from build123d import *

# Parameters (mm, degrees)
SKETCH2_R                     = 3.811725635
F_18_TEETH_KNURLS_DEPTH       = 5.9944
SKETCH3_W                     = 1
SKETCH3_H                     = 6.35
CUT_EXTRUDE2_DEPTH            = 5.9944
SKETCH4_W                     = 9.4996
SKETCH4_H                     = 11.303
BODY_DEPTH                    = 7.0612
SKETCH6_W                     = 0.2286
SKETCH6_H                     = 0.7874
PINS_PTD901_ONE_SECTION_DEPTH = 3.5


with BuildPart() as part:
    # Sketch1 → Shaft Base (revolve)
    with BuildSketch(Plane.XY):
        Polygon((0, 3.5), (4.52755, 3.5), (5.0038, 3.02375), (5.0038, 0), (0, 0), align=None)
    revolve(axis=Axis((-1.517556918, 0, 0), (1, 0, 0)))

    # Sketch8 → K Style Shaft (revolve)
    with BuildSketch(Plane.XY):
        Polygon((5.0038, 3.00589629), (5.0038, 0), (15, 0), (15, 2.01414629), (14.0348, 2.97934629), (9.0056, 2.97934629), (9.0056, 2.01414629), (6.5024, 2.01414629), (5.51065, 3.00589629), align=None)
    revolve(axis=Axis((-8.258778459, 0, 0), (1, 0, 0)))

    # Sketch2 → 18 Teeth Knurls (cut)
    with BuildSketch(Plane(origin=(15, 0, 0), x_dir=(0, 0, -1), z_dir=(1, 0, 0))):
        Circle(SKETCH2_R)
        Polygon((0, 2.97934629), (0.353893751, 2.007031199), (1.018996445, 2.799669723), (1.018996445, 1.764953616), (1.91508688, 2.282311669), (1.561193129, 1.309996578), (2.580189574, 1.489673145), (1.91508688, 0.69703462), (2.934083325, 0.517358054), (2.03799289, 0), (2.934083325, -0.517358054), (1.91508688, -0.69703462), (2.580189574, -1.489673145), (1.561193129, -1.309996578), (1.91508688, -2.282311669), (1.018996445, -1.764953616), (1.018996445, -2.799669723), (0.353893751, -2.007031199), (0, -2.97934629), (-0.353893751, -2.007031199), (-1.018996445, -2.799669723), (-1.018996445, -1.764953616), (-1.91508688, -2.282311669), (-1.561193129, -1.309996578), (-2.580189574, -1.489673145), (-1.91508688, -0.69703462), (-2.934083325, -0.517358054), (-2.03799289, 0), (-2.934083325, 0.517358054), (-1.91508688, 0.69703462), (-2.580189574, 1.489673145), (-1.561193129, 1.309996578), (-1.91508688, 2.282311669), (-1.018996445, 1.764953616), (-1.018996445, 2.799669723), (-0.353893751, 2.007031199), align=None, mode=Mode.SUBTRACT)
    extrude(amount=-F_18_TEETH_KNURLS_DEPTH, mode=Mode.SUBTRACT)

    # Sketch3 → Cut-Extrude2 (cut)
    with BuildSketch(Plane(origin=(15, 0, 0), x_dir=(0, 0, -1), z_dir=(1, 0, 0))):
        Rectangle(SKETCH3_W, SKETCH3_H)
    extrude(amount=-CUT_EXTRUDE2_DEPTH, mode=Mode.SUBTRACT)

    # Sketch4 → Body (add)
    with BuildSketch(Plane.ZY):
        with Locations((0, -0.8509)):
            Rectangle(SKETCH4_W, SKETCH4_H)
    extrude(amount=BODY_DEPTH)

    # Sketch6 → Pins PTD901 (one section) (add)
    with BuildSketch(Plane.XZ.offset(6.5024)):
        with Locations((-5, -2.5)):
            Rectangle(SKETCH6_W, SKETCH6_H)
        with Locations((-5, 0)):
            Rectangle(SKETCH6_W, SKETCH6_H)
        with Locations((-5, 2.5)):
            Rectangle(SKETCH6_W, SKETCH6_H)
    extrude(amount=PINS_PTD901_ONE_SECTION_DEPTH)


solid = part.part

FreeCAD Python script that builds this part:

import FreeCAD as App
import Part
import Sketcher

V = App.Vector
Q = App.Units.Quantity


def add_polygon(sketch, points):
    """Adds a closed chain of lines whose ends are joined by coincident constraints."""
    first, n = sketch.GeometryCount, len(points)
    for a, b in zip(points, points[1:] + points[:1]):
        sketch.addGeometry(Part.LineSegment(App.Vector(*a, 0), App.Vector(*b, 0)), False)
    for i in range(n):
        sketch.addConstraint(Sketcher.Constraint("Coincident", first + i, 2, first + (i + 1) % n, 1))

doc = App.newDocument("Part")
body = doc.addObject("PartDesign::Body", "Body")

sketch1 = body.newObject("Sketcher::SketchObject", "Sketch")
sketch1.AttachmentSupport = (doc.getObject("XY_Plane"), [""])
sketch1.MapMode = "FlatFace"
add_polygon(sketch1, [(4.5, 3.5), (0, 3.5), (0, 0), (5, 0), (5, 3)])
sketch1.addConstraint(Sketcher.Constraint("Horizontal", 0))
sketch1.addConstraint(Sketcher.Constraint("Vertical", 1))
sketch1.addConstraint(Sketcher.Constraint("Horizontal", 2))
sketch1.addConstraint(Sketcher.Constraint("Vertical", 3))
sketch1.addConstraint(Sketcher.Constraint("Coincident", 1, 2, -1, 1))
sketch1.addConstraint(Sketcher.Constraint("Angle", 4, Q("135 deg")))
sketch1.addConstraint(Sketcher.Constraint("DistanceX", 2, 1, 2, 2, Q("0.197 in")))
sketch1.addConstraint(Sketcher.Constraint("DistanceY", 1, 2, 1, 1, 3.5))
sketch1.addConstraint(Sketcher.Constraint("DistanceX", 0, 2, 0, 1, 4.52755))
revolution = body.newObject("PartDesign::Revolution", "Revolution")
revolution.Profile = sketch1
revolution.ReferenceAxis = (sketch1, ["H_Axis"])
revolution.Angle = 360

sketch2 = body.newObject("Sketcher::SketchObject", "Sketch001")
sketch2.AttachmentSupport = (doc.getObject("XY_Plane"), [""])
sketch2.MapMode = "FlatFace"
add_polygon(sketch2, [(5, 3), (5, 0), (15, 0), (15, 2), (14, 3), (9, 3), (9, 2), (6.5, 2), (5.5, 3)])
sketch2.addConstraint(Sketcher.Constraint("Vertical", 0))
sketch2.addConstraint(Sketcher.Constraint("Horizontal", 1))
sketch2.addConstraint(Sketcher.Constraint("Vertical", 2))
sketch2.addConstraint(Sketcher.Constraint("Horizontal", 4))
sketch2.addConstraint(Sketcher.Constraint("Vertical", 5))
sketch2.addConstraint(Sketcher.Constraint("Horizontal", 6))
sketch2.addConstraint(Sketcher.Constraint("Horizontal", 8))
sketch2.addConstraint(Sketcher.Constraint("PointOnObject", 0, 2, -1))
sketch2.addConstraint(Sketcher.Constraint("Parallel", 3, 7))
sketch2.addConstraint(Sketcher.Constraint("Horizontal", 2, 2, 5, 2))
sketch2.addConstraint(Sketcher.Constraint("Angle", 3, Q("135 deg")))
sketch2.addConstraint(Sketcher.Constraint("DistanceX", 4, 2, 4, 1, Q("0.198 in")))
sketch2.addConstraint(Sketcher.Constraint("DistanceY", 5, 2, 5, 1, Q("0.038 in")))
sketch2.addConstraint(Sketcher.Constraint("DistanceX", -1, 1, 0, 2, Q("0.197 in")))
sketch2.addConstraint(Sketcher.Constraint("DistanceX", -1, 1, 6, 2, Q("0.256 in")))
sketch2.addConstraint(Sketcher.Constraint("DistanceX", 1, 1, 1, 2, 9.9962))
sketch2.addConstraint(Sketcher.Constraint("DistanceX", 8, 2, 8, 1, 0.50685))
sketch2.addConstraint(Sketcher.Constraint("DistanceY", 0, 2, 0, 1, 3.005896))
revolution2 = body.newObject("PartDesign::Revolution", "Revolution001")
revolution2.Profile = sketch2
revolution2.ReferenceAxis = (sketch2, ["H_Axis"])
revolution2.Angle = 360

sketch3 = body.newObject("Sketcher::SketchObject", "Sketch002")
sketch3.AttachmentSupport = (doc.getObject("YZ_Plane"), [""])
sketch3.MapMode = "FlatFace"
sketch3.AttachmentOffset = App.Placement(V(0, 0, 15), App.Rotation())
sketch3.addGeometry(Part.Circle(V(0, 0, 0), V(0, 0, 1), 3.8), False)
add_polygon(sketch3, [(2, 0.4), (3, 0), (2, -0.4), (2.8, -1), (1.8, -1), (2.3, -1.9), (1.3, -1.6), (1.5, -2.6), (0.7, -1.9), (0.5, -2.9), (0, -2), (-0.5, -2.9), (-0.7, -1.9), (-1.5, -2.6), (-1.3, -1.6), (-2.3, -1.9), (-1.8, -1), (-2.8, -1), (-2, -0.4), (-3, 0), (-2, 0.4), (-2.8, 1), (-1.8, 1), (-2.3, 1.9), (-1.3, 1.6), (-1.5, 2.6), (-0.7, 1.9), (-0.5, 2.9), (0, 2), (0.5, 2.9), (0.7, 1.9), (1.5, 2.6), (1.3, 1.6), (2.3, 1.9), (1.8, 1), (2.8, 1)])
sketch3.addConstraint(Sketcher.Constraint("Horizontal", 4))
sketch3.addConstraint(Sketcher.Constraint("Horizontal", 17))
sketch3.addConstraint(Sketcher.Constraint("Horizontal", 22))
sketch3.addConstraint(Sketcher.Constraint("Horizontal", 35))
sketch3.addConstraint(Sketcher.Constraint("Coincident", 0, 3, -1, 1))
sketch3.addConstraint(Sketcher.Constraint("Symmetric", 1, 2, 19, 2, -1, 1))
sketch3.addConstraint(Sketcher.Constraint("Symmetric", 2, 2, 20, 2, -1, 1))
sketch3.addConstraint(Sketcher.Constraint("Symmetric", 3, 2, 21, 2, -1, 1))
sketch3.addConstraint(Sketcher.Constraint("Symmetric", 5, 2, 23, 2, -1, 1))
sketch3.addConstraint(Sketcher.Constraint("Symmetric", 6, 2, 24, 2, -1, 1))
sketch3.addConstraint(Sketcher.Constraint("Symmetric", 7, 2, 25, 2, -1, 1))
sketch3.addConstraint(Sketcher.Constraint("Symmetric", 8, 2, 26, 2, -1, 1))
sketch3.addConstraint(Sketcher.Constraint("Symmetric", 9, 2, 27, 2, -1, 1))
sketch3.addConstraint(Sketcher.Constraint("Symmetric", 10, 2, 28, 2, -1, 1))
sketch3.addConstraint(Sketcher.Constraint("Symmetric", 11, 2, 29, 2, -1, 1))
sketch3.addConstraint(Sketcher.Constraint("Symmetric", 12, 2, 30, 2, -1, 1))
sketch3.addConstraint(Sketcher.Constraint("Symmetric", 13, 2, 31, 2, -1, 1))
sketch3.addConstraint(Sketcher.Constraint("Symmetric", 14, 2, 32, 2, -1, 1))
sketch3.addConstraint(Sketcher.Constraint("Symmetric", 15, 2, 33, 2, -1, 1))
sketch3.addConstraint(Sketcher.Constraint("Symmetric", 16, 2, 34, 2, -1, 1))
sketch3.addConstraint(Sketcher.Constraint("Symmetric", 18, 2, 36, 2, -1, 1))
sketch3.addConstraint(Sketcher.Constraint("Symmetric", 9, 2, 11, 2, -2))
sketch3.addConstraint(Sketcher.Constraint("Symmetric", 8, 2, 12, 2, -2))
sketch3.addConstraint(Sketcher.Constraint("Symmetric", 7, 2, 13, 2, -2))
sketch3.addConstraint(Sketcher.Constraint("Symmetric", 6, 2, 14, 2, -2))
sketch3.addConstraint(Sketcher.Constraint("Symmetric", 5, 2, 15, 2, -2))
sketch3.addConstraint(Sketcher.Constraint("Symmetric", 4, 2, 16, 2, -2))
sketch3.addConstraint(Sketcher.Constraint("Symmetric", 2, 2, 18, 2, -2))
sketch3.addConstraint(Sketcher.Constraint("PointOnObject", 1, 2, -1))
sketch3.addConstraint(Sketcher.Constraint("PointOnObject", 10, 2, -2))
sketch3.addConstraint(Sketcher.Constraint("Parallel", 1, 6))
sketch3.addConstraint(Sketcher.Constraint("Parallel", 3, 8))
sketch3.addConstraint(Sketcher.Constraint("Parallel", 5, 10))
sketch3.addConstraint(Sketcher.Constraint("Parallel", 7, 12))
sketch3.addConstraint(Sketcher.Constraint("Parallel", 13, 18))
sketch3.addConstraint(Sketcher.Constraint("Parallel", 10, 23))
sketch3.addConstraint(Sketcher.Constraint("Parallel", 31, 36))
sketch3.addConstraint(Sketcher.Constraint("Horizontal", 5, 2, 8, 2))
sketch3.addConstraint(Sketcher.Constraint("Equal", 2, 3))
sketch3.addConstraint(Sketcher.Constraint("Equal", 3, 5))
sketch3.addConstraint(Sketcher.Constraint("Equal", 5, 6))
sketch3.addConstraint(Sketcher.Constraint("Equal", 6, 7))
sketch3.addConstraint(Sketcher.Constraint("Equal", 7, 8))
sketch3.addConstraint(Sketcher.Constraint("Equal", 8, 9))
sketch3.addConstraint(Sketcher.Constraint("Equal", 9, 10))
sketch3.addConstraint(Sketcher.Constraint("Angle", 1, Q("-20 deg")))
sketch3.addConstraint(Sketcher.Constraint("Angle", 3, Q("-40 deg")))
sketch3.addConstraint(Sketcher.Constraint("Angle", 5, Q("-60 deg")))
sketch3.addConstraint(Sketcher.Constraint("Diameter", 0, 7.623451))
sketch3.addConstraint(Sketcher.Constraint("DistanceY", 6, 2, 2, 2, 1.207299))
sketch3.addConstraint(Sketcher.Constraint("DistanceX", 4, 2, 4, 1, 1.034716))
pocket1 = body.newObject("PartDesign::Pocket", "Pocket")
pocket1.Profile = sketch3
pocket1.Length = Q("0.236 in")

sketch4 = body.newObject("Sketcher::SketchObject", "Sketch003")
sketch4.AttachmentSupport = (doc.getObject("YZ_Plane"), [""])
sketch4.MapMode = "FlatFace"
sketch4.AttachmentOffset = App.Placement(V(0, 0, 15), App.Rotation())
add_polygon(sketch4, [(3.2, 0.5), (-3.2, 0.5), (-3.2, -0.5), (3.2, -0.5)])
sketch4.addConstraint(Sketcher.Constraint("Horizontal", 0))
sketch4.addConstraint(Sketcher.Constraint("Vertical", 1))
sketch4.addConstraint(Sketcher.Constraint("Horizontal", 2))
sketch4.addConstraint(Sketcher.Constraint("Vertical", 3))
sketch4.addConstraint(Sketcher.Constraint("Symmetric", 0, 2, 2, 2, -1, 1))
sketch4.addConstraint(Sketcher.Constraint("DistanceX", 0, 2, 0, 1, Q("0.25 in")))
sketch4.addConstraint(Sketcher.Constraint("DistanceY", 1, 2, 1, 1, 1.0))
pocket2 = body.newObject("PartDesign::Pocket", "Pocket001")
pocket2.Profile = sketch4
pocket2.Length = Q("0.236 in")

sketch5 = body.newObject("Sketcher::SketchObject", "Sketch004")
sketch5.AttachmentSupport = (doc.getObject("YZ_Plane"), [""])
sketch5.MapMode = "FlatFace"
add_polygon(sketch5, [(5, -5), (-7, -5), (-7, 5), (5, 5)])
sketch5.addConstraint(Sketcher.Constraint("Horizontal", 0))
sketch5.addConstraint(Sketcher.Constraint("Vertical", 1))
sketch5.addConstraint(Sketcher.Constraint("Horizontal", 2))
sketch5.addConstraint(Sketcher.Constraint("Vertical", 3))
sketch5.addConstraint(Sketcher.Constraint("DistanceX", 0, 2, 0, 1, Q("0.445 in")))
sketch5.addConstraint(Sketcher.Constraint("DistanceY", 1, 1, 1, 2, Q("0.374 in")))
sketch5.addConstraint(Sketcher.Constraint("DistanceX", 0, 2, -1, 1, Q("0.256 in")))
sketch5.addConstraint(Sketcher.Constraint("DistanceY", 0, 2, -1, 1, Q("0.187 in")))
pad1 = body.newObject("PartDesign::Pad", "Pad")
pad1.Profile = sketch5
pad1.Length = Q("0.278 in")
pad1.Reversed = True

sketch6 = body.newObject("Sketcher::SketchObject", "Sketch005")
sketch6.AttachmentSupport = (doc.getObject("XZ_Plane"), [""])
sketch6.MapMode = "FlatFace"
sketch6.AttachmentOffset = App.Placement(V(0, 0, 0.256 * 25.4), App.Rotation())
add_polygon(sketch6, [(-5.11, -2.11), (-5.11, -2.89), (-4.89, -2.89), (-4.89, -2.11)])
add_polygon(sketch6, [(-5.11, 0.39), (-5.11, -0.39), (-4.89, -0.39), (-4.89, 0.39)])
add_polygon(sketch6, [(-5.11, 2.89), (-5.11, 2.11), (-4.89, 2.11), (-4.89, 2.89)])
sketch6.addConstraint(Sketcher.Constraint("Vertical", 0))
sketch6.addConstraint(Sketcher.Constraint("Horizontal", 1))
sketch6.addConstraint(Sketcher.Constraint("Vertical", 2))
sketch6.addConstraint(Sketcher.Constraint("Horizontal", 3))
sketch6.addConstraint(Sketcher.Constraint("Vertical", 4))
sketch6.addConstraint(Sketcher.Constraint("Horizontal", 5))
sketch6.addConstraint(Sketcher.Constraint("Vertical", 6))
sketch6.addConstraint(Sketcher.Constraint("Horizontal", 7))
sketch6.addConstraint(Sketcher.Constraint("Vertical", 8))
sketch6.addConstraint(Sketcher.Constraint("Horizontal", 9))
sketch6.addConstraint(Sketcher.Constraint("Vertical", 10))
sketch6.addConstraint(Sketcher.Constraint("Horizontal", 11))
sketch6.addConstraint(Sketcher.Constraint("Symmetric", 3, 2, 8, 2, -1))
sketch6.addConstraint(Sketcher.Constraint("Symmetric", 1, 2, 10, 2, -1))
sketch6.addConstraint(Sketcher.Constraint("Vertical", 3, 2, 4, 2))
sketch6.addConstraint(Sketcher.Constraint("Vertical", 2, 2, 5, 2))
sketch6.addConstraint(Sketcher.Constraint("Equal", 2, 4))
sketch6.addConstraint(Sketcher.Constraint("DistanceX", 1, 1, 1, 2, Q("0.009 in")))
sketch6.addConstraint(Sketcher.Constraint("DistanceY", 0, 2, 0, 1, Q("0.031 in")))
sketch6.addConstraint(Sketcher.Constraint("DistanceY", 4, 2, -1, 1, Q("0.0155 in")))
sketch6.addConstraint(Sketcher.Constraint("DistanceX", 0, 2, -1, 1, 5.1143))
sketch6.addConstraint(Sketcher.Constraint("DistanceY", 0, 2, -1, 1, 2.8937))
pad2 = body.newObject("PartDesign::Pad", "Pad001")
pad2.Profile = sketch6
pad2.Length = 3.5

doc.recompute()
